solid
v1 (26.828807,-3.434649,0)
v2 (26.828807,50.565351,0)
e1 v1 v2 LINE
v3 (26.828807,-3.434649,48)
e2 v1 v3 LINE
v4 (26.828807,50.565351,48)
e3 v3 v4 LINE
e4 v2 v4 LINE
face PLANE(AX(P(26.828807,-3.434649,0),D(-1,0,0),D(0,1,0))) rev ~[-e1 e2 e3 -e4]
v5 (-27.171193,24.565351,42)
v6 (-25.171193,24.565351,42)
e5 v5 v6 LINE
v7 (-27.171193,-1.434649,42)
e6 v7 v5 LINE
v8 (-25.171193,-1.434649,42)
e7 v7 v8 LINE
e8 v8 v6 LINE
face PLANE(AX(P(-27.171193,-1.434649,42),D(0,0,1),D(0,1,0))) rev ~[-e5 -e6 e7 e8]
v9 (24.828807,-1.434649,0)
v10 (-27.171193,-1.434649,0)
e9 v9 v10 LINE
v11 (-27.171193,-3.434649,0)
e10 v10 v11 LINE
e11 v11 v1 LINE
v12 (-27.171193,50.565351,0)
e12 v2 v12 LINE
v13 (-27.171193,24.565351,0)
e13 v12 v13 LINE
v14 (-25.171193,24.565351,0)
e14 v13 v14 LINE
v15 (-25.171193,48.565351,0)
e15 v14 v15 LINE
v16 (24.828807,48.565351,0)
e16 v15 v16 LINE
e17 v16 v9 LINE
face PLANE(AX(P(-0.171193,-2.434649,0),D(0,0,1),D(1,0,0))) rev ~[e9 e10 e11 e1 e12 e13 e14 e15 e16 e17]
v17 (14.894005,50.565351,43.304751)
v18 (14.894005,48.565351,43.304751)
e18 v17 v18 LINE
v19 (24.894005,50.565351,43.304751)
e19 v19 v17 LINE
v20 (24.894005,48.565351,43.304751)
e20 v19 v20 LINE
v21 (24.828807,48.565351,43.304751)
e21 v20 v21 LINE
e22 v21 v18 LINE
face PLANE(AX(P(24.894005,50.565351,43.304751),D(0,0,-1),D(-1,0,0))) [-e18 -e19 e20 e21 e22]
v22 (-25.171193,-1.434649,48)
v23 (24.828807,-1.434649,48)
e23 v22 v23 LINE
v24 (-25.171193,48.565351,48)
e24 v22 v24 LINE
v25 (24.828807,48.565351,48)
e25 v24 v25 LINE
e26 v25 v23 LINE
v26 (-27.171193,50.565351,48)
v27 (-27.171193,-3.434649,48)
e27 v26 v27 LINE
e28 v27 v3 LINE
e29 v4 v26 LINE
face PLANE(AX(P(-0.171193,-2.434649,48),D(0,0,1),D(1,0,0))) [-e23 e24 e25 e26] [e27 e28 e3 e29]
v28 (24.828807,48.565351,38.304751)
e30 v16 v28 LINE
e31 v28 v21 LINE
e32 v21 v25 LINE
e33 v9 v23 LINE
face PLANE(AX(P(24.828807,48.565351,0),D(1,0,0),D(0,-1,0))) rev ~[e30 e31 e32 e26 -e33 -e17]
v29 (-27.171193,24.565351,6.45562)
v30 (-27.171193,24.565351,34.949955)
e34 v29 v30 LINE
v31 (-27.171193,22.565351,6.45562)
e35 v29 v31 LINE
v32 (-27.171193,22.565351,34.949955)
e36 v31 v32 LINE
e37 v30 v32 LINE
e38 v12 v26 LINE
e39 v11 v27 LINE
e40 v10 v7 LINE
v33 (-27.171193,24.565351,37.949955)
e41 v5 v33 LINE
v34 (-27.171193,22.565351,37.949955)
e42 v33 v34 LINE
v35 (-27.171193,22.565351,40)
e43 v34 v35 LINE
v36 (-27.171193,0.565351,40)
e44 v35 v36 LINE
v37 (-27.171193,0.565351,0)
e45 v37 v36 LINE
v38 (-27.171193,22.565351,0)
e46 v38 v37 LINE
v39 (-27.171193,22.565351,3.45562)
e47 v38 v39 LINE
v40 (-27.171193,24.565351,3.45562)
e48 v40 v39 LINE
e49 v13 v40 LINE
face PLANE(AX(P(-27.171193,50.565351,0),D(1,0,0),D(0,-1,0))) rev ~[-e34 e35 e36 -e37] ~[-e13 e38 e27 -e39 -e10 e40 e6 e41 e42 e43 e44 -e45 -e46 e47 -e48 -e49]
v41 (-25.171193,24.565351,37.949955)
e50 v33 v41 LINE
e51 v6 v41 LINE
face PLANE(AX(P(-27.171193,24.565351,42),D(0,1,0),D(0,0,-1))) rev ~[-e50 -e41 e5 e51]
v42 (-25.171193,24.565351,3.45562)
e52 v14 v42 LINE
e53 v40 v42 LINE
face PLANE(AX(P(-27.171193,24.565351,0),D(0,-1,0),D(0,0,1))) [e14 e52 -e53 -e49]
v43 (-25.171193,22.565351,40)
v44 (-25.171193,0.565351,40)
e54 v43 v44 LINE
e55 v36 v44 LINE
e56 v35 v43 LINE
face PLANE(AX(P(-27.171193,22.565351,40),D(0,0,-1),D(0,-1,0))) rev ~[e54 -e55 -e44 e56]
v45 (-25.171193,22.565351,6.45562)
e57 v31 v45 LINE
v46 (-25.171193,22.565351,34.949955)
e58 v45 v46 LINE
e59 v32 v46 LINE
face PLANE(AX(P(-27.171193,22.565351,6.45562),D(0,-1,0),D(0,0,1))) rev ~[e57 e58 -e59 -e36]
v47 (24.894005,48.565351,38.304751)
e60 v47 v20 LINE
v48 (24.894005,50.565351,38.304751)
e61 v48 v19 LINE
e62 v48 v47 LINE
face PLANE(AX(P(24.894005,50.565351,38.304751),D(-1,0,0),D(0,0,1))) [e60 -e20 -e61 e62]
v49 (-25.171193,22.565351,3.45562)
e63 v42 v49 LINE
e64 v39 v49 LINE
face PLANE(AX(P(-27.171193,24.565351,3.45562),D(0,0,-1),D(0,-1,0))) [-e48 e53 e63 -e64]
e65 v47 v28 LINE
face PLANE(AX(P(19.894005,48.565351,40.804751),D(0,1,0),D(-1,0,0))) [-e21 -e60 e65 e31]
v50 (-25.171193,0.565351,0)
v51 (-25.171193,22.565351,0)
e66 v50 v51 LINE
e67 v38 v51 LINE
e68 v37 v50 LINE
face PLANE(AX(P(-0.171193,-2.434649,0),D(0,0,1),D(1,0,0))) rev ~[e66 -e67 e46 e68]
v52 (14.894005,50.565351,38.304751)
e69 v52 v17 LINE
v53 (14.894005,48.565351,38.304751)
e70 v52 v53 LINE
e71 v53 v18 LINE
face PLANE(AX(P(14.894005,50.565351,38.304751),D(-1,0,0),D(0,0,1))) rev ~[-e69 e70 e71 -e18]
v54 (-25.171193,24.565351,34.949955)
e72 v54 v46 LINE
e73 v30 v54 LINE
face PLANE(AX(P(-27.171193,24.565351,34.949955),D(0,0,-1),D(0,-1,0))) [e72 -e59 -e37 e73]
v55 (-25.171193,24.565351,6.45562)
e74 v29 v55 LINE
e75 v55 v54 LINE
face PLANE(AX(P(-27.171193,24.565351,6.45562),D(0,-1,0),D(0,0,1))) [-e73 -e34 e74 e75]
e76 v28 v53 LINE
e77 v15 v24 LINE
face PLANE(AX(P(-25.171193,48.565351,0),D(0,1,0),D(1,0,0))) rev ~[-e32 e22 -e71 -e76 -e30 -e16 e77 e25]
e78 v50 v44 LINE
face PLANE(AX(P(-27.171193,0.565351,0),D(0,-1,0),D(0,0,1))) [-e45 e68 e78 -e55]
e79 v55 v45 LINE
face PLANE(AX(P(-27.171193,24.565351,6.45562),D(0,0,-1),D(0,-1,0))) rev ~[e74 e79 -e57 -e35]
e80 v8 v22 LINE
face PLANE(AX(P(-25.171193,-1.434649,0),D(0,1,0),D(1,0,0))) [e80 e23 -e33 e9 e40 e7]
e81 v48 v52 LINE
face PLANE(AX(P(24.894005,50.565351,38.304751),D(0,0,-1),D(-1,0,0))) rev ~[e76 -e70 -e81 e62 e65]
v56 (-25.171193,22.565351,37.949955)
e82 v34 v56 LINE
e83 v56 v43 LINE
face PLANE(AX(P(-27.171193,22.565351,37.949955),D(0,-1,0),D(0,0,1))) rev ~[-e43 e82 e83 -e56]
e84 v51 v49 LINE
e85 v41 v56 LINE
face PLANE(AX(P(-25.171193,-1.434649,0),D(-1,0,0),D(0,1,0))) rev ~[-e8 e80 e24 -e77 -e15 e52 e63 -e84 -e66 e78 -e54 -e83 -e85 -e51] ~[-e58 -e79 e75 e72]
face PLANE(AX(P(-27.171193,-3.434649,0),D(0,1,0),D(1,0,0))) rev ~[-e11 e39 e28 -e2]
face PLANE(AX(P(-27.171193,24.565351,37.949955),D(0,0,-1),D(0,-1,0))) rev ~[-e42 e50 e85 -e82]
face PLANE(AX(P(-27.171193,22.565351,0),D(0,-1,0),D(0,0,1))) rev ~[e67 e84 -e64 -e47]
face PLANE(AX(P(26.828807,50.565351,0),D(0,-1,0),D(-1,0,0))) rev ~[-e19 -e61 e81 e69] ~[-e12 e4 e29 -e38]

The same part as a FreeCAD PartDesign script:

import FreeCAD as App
import Part
import Sketcher
Q = App.Units.Quantity

doc = App.newDocument("Part")
body = doc.addObject("PartDesign::Body", "Body")

# Sketch on XY plane
sketch1 = body.newObject("Sketcher::SketchObject", "Sketch")
sketch1.AttachmentSupport = (doc.getObject("XY_Plane"), [""])
sketch1.MapMode = "FlatFace"
sketch1.addGeometry(Part.LineSegment(App.Vector(-27, 51, 0), App.Vector(-27, -3, 0)), False)
sketch1.addGeometry(Part.LineSegment(App.Vector(-27, -3, 0), App.Vector(27, -3, 0)), False)
sketch1.addGeometry(Part.LineSegment(App.Vector(27, -3, 0), App.Vector(27, 51, 0)), False)
sketch1.addGeometry(Part.LineSegment(App.Vector(27, 51, 0), App.Vector(-27, 51, 0)), False)
sketch1.addGeometry(Part.LineSegment(App.Vector(25, -1, 0), App.Vector(-25, -1, 0)), False)
sketch1.addGeometry(Part.LineSegment(App.Vector(-25, -1, 0), App.Vector(-25, 49, 0)), False)
sketch1.addGeometry(Part.LineSegment(App.Vector(-25, 49, 0), App.Vector(25, 49, 0)), False)
sketch1.addGeometry(Part.LineSegment(App.Vector(25, 49, 0), App.Vector(25, -1, 0)), False)
sketch1.addConstraint(Sketcher.Constraint("Coincident", 0, 2, 1, 1))
sketch1.addConstraint(Sketcher.Constraint("Coincident", 1, 2, 2, 1))
sketch1.addConstraint(Sketcher.Constraint("Coincident", 2, 2, 3, 1))
sketch1.addConstraint(Sketcher.Constraint("Coincident", 3, 2, 0, 1))
sketch1.addConstraint(Sketcher.Constraint("Coincident", 4, 2, 5, 1))
sketch1.addConstraint(Sketcher.Constraint("Coincident", 5, 2, 6, 1))
sketch1.addConstraint(Sketcher.Constraint("Coincident", 6, 2, 7, 1))
sketch1.addConstraint(Sketcher.Constraint("Coincident", 7, 2, 4, 1))
sketch1.addConstraint(Sketcher.Constraint("Vertical", 0))
sketch1.addConstraint(Sketcher.Constraint("Horizontal", 1))
sketch1.addConstraint(Sketcher.Constraint("Vertical", 2))
sketch1.addConstraint(Sketcher.Constraint("Horizontal", 3))
sketch1.addConstraint(Sketcher.Constraint("Horizontal", 4))
sketch1.addConstraint(Sketcher.Constraint("Vertical", 5))
sketch1.addConstraint(Sketcher.Constraint("Horizontal", 6))
sketch1.addConstraint(Sketcher.Constraint("Vertical", 7))
sketch1.addConstraint(Sketcher.Constraint("Equal", 3, 0))
sketch1.addConstraint(Sketcher.Constraint("Equal", 6, 5))
sketch1.addConstraint(Sketcher.Constraint("DistanceX", 1, 1, 1, 2, Q("54 mm")))
sketch1.addConstraint(Sketcher.Constraint("DistanceX", 4, 2, 4, 1, Q("50 mm")))
sketch1.addConstraint(Sketcher.Constraint("DistanceX", 0, 2, 4, 2, Q("2 mm")))
sketch1.addConstraint(Sketcher.Constraint("DistanceY", 0, 2, 4, 2, Q("2 mm")))
sketch1.addConstraint(Sketcher.Constraint("DistanceY", 0, 2, -1, 1, Q("3.434649 mm")))
sketch1.addConstraint(Sketcher.Constraint("DistanceX", 0, 2, -1, 1, Q("27.171193 mm")))
pad1 = body.newObject("PartDesign::Pad", "Pad")
pad1.Profile = sketch1
pad1.Length = 48

# Sketch on YZ plane
sketch2 = body.newObject("Sketcher::SketchObject", "Sketch001")
sketch2.AttachmentSupport = (doc.getObject("YZ_Plane"), [""])
sketch2.MapMode = "FlatFace"
sketch2.AttachmentOffset = App.Placement(App.Vector(0, 0, -27.171193), App.Rotation())
sketch2.addGeometry(Part.LineSegment(App.Vector(0.6, 40, 0), App.Vector(0.6, 0, 0)), False)
sketch2.addGeometry(Part.LineSegment(App.Vector(0.6, 0, 0), App.Vector(-1.4, 0, 0)), False)
sketch2.addGeometry(Part.LineSegment(App.Vector(-1.4, 0, 0), App.Vector(-1.4, 42, 0)), False)
sketch2.addGeometry(Part.LineSegment(App.Vector(-1.4, 42, 0), App.Vector(24.6, 42, 0)), False)
sketch2.addGeometry(Part.LineSegment(App.Vector(24.6, 42, 0), App.Vector(24.6, 37.9, 0)), False)
sketch2.addGeometry(Part.LineSegment(App.Vector(24.6, 37.9, 0), App.Vector(22.6, 37.9, 0)), False)
sketch2.addGeometry(Part.LineSegment(App.Vector(22.6, 37.9, 0), App.Vector(22.6, 40, 0)), False)
sketch2.addGeometry(Part.LineSegment(App.Vector(22.6, 40, 0), App.Vector(0.6, 40, 0)), False)
sketch2.addGeometry(Part.LineSegment(App.Vector(24.6, 3.5, 0), App.Vector(24.6, 0, 0)), False)
sketch2.addGeometry(Part.LineSegment(App.Vector(24.6, 0, 0), App.Vector(22.6, 0, 0)), False)
sketch2.addGeometry(Part.LineSegment(App.Vector(22.6, 0, 0), App.Vector(22.6, 3.5, 0)), False)
sketch2.addGeometry(Part.LineSegment(App.Vector(22.6, 3.5, 0), App.Vector(24.6, 3.5, 0)), False)
sketch2.addGeometry(Part.LineSegment(App.Vector(24.6, 34.9, 0), App.Vector(24.6, 6.5, 0)), False)
sketch2.addGeometry(Part.LineSegment(App.Vector(24.6, 6.5, 0), App.Vector(22.6, 6.5, 0)), False)
sketch2.addGeometry(Part.LineSegment(App.Vector(22.6, 6.5, 0), App.Vector(22.6, 34.9, 0)), False)
sketch2.addGeometry(Part.LineSegment(App.Vector(22.6, 34.9, 0), App.Vector(24.6, 34.9, 0)), False)
sketch2.addConstraint(Sketcher.Constraint("Coincident", 0, 2, 1, 1))
sketch2.addConstraint(Sketcher.Constraint("Coincident", 1, 2, 2, 1))
sketch2.addConstraint(Sketcher.Constraint("Coincident", 2, 2, 3, 1))
sketch2.addConstraint(Sketcher.Constraint("Coincident", 3, 2, 4, 1))
sketch2.addConstraint(Sketcher.Constraint("Coincident", 4, 2, 5, 1))
sketch2.addConstraint(Sketcher.Constraint("Coincident", 5, 2, 6, 1))
sketch2.addConstraint(Sketcher.Constraint("Coincident", 6, 2, 7, 1))
sketch2.addConstraint(Sketcher.Constraint("Coincident", 7, 2, 0, 1))
sketch2.addConstraint(Sketcher.Constraint("Coincident", 8, 2, 9, 1))
sketch2.addConstraint(Sketcher.Constraint("Coincident", 9, 2, 10, 1))
sketch2.addConstraint(Sketcher.Constraint("Coincident", 10, 2, 11, 1))
sketch2.addConstraint(Sketcher.Constraint("Coincident", 11, 2, 8, 1))
sketch2.addConstraint(Sketcher.Constraint("Coincident", 12, 2, 13, 1))
sketch2.addConstraint(Sketcher.Constraint("Coincident", 13, 2, 14, 1))
sketch2.addConstraint(Sketcher.Constraint("Coincident", 14, 2, 15, 1))
sketch2.addConstraint(Sketcher.Constraint("Coincident", 15, 2, 12, 1))
sketch2.addConstraint(Sketcher.Constraint("Vertical", 0))
sketch2.addConstraint(Sketcher.Constraint("Horizontal", 1))
sketch2.addConstraint(Sketcher.Constraint("Vertical", 2))
sketch2.addConstraint(Sketcher.Constraint("Horizontal", 3))
sketch2.addConstraint(Sketcher.Constraint("Vertical", 4))
sketch2.addConstraint(Sketcher.Constraint("Horizontal", 5))
sketch2.addConstraint(Sketcher.Constraint("Vertical", 6))
sketch2.addConstraint(Sketcher.Constraint("Horizontal", 7))
sketch2.addConstraint(Sketcher.Constraint("Vertical", 8))
sketch2.addConstraint(Sketcher.Constraint("Horizontal", 9))
sketch2.addConstraint(Sketcher.Constraint("Vertical", 10))
sketch2.addConstraint(Sketcher.Constraint("Horizontal", 11))
sketch2.addConstraint(Sketcher.Constraint("Vertical", 12))
sketch2.addConstraint(Sketcher.Constraint("Horizontal", 13))
sketch2.addConstraint(Sketcher.Constraint("Vertical", 14))
sketch2.addConstraint(Sketcher.Constraint("Horizontal", 15))
sketch2.addConstraint(Sketcher.Constraint("PointOnObject", 0, 2, -1))
sketch2.addConstraint(Sketcher.Constraint("PointOnObject", 8, 2, -1))
sketch2.addConstraint(Sketcher.Constraint("Vertical", 4, 2, 8, 2))
sketch2.addConstraint(Sketcher.Constraint("Vertical", 6, 2, 9, 2))
sketch2.addConstraint(Sketcher.Constraint("Vertical", 11, 2, 12, 2))
sketch2.addConstraint(Sketcher.Constraint("Vertical", 10, 2, 13, 2))
sketch2.addConstraint(Sketcher.Constraint("Equal", 1, 5))
sketch2.addConstraint(Sketcher.Constraint("DistanceX", 1, 2, 1, 1, Q("2 mm")))
sketch2.addConstraint(Sketcher.Constraint("DistanceX", 3, 1, 3, 2, Q("26 mm")))
sketch2.addConstraint(Sketcher.Constraint("DistanceY", 0, 2, 0, 1, Q("40 mm")))
sketch2.addConstraint(Sketcher.Constraint("DistanceY", 2, 1, 2, 2, Q("42 mm")))
sketch2.addConstraint(Sketcher.Constraint("DistanceY", 11, 2, 12, 2, Q("3 mm")))
sketch2.addConstraint(Sketcher.Constraint("DistanceY", 14, 2, 5, 2, Q("3 mm")))
sketch2.addConstraint(Sketcher.Constraint("DistanceY", 8, 2, 8, 1, Q("3.45562 mm")))
sketch2.addConstraint(Sketcher.Constraint("DistanceY", 4, 2, 4, 1, Q("4.050045 mm")))
sketch2.addConstraint(Sketcher.Constraint("DistanceX", -1, 1, 0, 2, Q("0.565351 mm")))
pocket1 = body.newObject("PartDesign::Pocket", "Pocket")
pocket1.Profile = sketch2
pocket1.Length = 25
pocket1.Reversed = True

# Sketch on XZ plane
sketch3 = body.newObject("Sketcher::SketchObject", "Sketch002")
sketch3.AttachmentSupport = (doc.getObject("XZ_Plane"), [""])
sketch3.MapMode = "FlatFace"
sketch3.AttachmentOffset = App.Placement(App.Vector(0, 0, -50.565351), App.Rotation())
sketch3.addGeometry(Part.LineSegment(App.Vector(25, 43, 0), App.Vector(25, 38, 0)), False)
sketch3.addGeometry(Part.LineSegment(App.Vector(25, 38, 0), App.Vector(15, 38, 0)), False)
sketch3.addGeometry(Part.LineSegment(App.Vector(15, 38, 0), App.Vector(15, 43, 0)), False)
sketch3.addGeometry(Part.LineSegment(App.Vector(15, 43, 0), App.Vector(25, 43, 0)), False)
sketch3.addConstraint(Sketcher.Constraint("Coincident", 0, 2, 1, 1))
sketch3.addConstraint(Sketcher.Constraint("Coincident", 1, 2, 2, 1))
sketch3.addConstraint(Sketcher.Constraint("Coincident", 2, 2, 3, 1))
sketch3.addConstraint(Sketcher.Constraint("Coincident", 3, 2, 0, 1))
sketch3.addConstraint(Sketcher.Constraint("Vertical", 0))
sketch3.addConstraint(Sketcher.Constraint("Horizontal", 1))
sketch3.addConstraint(Sketcher.Constraint("Vertical", 2))
sketch3.addConstraint(Sketcher.Constraint("Horizontal", 3))
sketch3.addConstraint(Sketcher.Constraint("DistanceX", 1, 2, 1, 1, Q("10 mm")))
sketch3.addConstraint(Sketcher.Constraint("DistanceY", 0, 2, 0, 1, Q("5 mm")))
sketch3.addConstraint(Sketcher.Constraint("DistanceY", -1, 1, 0, 2, Q("38.304751 mm")))
sketch3.addConstraint(Sketcher.Constraint("DistanceX", -1, 1, 0, 2, Q("24.894005 mm")))
pocket2 = body.newObject("PartDesign::Pocket", "Pocket001")
pocket2.Profile = sketch3
pocket2.Length = 2
pocket2.Reversed = True

doc.recompute()
